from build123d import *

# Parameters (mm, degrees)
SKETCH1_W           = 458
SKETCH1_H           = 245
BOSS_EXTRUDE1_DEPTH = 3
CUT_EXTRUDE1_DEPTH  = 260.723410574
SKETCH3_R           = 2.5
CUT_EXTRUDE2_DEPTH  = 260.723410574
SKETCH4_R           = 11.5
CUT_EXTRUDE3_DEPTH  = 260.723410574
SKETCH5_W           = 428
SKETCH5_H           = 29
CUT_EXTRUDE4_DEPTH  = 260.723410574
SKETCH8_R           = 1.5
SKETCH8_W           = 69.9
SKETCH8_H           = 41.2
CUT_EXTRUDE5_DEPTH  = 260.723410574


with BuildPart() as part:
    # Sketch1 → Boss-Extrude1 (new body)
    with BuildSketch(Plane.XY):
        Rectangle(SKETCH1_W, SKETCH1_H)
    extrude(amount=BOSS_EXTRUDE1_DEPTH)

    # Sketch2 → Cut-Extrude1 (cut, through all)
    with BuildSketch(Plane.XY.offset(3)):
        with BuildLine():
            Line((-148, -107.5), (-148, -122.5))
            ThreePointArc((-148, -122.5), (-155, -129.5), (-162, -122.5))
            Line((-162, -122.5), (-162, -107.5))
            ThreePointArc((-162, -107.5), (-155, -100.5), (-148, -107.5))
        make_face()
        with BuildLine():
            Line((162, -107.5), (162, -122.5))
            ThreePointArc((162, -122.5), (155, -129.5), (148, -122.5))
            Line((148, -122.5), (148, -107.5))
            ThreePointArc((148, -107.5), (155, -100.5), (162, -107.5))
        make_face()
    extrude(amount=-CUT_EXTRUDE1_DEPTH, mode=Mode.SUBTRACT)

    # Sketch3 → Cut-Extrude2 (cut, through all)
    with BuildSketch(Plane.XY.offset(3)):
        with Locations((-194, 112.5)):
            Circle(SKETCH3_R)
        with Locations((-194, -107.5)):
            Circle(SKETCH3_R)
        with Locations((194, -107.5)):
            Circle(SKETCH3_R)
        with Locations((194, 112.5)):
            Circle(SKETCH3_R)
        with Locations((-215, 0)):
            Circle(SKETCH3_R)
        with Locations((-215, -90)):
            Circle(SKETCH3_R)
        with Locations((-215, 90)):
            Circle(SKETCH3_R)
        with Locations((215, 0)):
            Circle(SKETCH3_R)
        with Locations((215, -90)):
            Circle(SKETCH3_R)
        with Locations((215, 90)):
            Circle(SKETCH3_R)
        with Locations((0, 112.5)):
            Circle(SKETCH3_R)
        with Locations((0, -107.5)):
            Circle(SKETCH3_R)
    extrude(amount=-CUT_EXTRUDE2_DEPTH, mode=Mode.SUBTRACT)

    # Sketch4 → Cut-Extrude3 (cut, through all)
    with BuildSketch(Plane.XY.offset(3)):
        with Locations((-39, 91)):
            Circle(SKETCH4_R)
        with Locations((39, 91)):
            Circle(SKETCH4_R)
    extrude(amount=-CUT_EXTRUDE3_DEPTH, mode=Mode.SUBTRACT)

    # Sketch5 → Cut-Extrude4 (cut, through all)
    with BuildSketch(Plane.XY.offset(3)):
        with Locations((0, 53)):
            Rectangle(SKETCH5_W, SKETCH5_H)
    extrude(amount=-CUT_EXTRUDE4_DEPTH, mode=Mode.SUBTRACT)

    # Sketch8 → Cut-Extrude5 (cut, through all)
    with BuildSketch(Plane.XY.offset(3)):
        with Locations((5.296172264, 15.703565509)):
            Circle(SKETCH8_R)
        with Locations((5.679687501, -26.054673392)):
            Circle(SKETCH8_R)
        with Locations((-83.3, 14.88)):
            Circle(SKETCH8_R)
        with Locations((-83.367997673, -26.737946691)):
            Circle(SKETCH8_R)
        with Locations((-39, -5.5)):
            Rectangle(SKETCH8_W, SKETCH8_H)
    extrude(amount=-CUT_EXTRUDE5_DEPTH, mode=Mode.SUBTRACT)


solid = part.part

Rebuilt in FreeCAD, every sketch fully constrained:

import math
import FreeCAD as App
import Part
import Sketcher

V = App.Vector
Q = App.Units.Quantity

doc = App.newDocument("Part")
body = doc.addObject("PartDesign::Body", "Body")

sketch1 = doc.addObject("Sketcher::SketchObject", "Sketch")
body.addObject(sketch1)
sketch1.AttachmentSupport = (doc.XY_Plane, [""])
sketch1.MapMode = "FlatFace"
sketch1.addGeometry(Part.LineSegment(V(-229, 122.5, 0), V(-229, -122.5, 0)), False)
sketch1.addGeometry(Part.LineSegment(V(-229, -122.5, 0), V(229, -122.5, 0)), False)
sketch1.addGeometry(Part.LineSegment(V(229, -122.5, 0), V(229, 122.5, 0)), False)
sketch1.addGeometry(Part.LineSegment(V(229, 122.5, 0), V(-229, 122.5, 0)), False)
sketch1.addConstraint(Sketcher.Constraint("Coincident", 0, 2, 1, 1))
sketch1.addConstraint(Sketcher.Constraint("Coincident", 1, 2, 2, 1))
sketch1.addConstraint(Sketcher.Constraint("Coincident", 2, 2, 3, 1))
sketch1.addConstraint(Sketcher.Constraint("Coincident", 3, 2, 0, 1))
sketch1.addConstraint(Sketcher.Constraint("Vertical", 0))
sketch1.addConstraint(Sketcher.Constraint("Horizontal", 1))
sketch1.addConstraint(Sketcher.Constraint("Vertical", 2))
sketch1.addConstraint(Sketcher.Constraint("Horizontal", 3))
sketch1.addConstraint(Sketcher.Constraint("Symmetric", 0, 2, 2, 2, -1, 1))
sketch1.addConstraint(Sketcher.Constraint("DistanceX", 1, 1, 1, 2, Q("458 mm")))
sketch1.addConstraint(Sketcher.Constraint("DistanceY", 0, 2, 0, 1, Q("245 mm")))
pad1 = doc.addObject("PartDesign::Pad", "Pad")
body.addObject(pad1)
pad1.Profile = sketch1
pad1.Length = 3

sketch2 = doc.addObject("Sketcher::SketchObject", "Sketch001")
body.addObject(sketch2)
sketch2.AttachmentSupport = (doc.XY_Plane, [""])
sketch2.MapMode = "FlatFace"
sketch2.AttachmentOffset = App.Placement(V(0, 0, 3), App.Rotation())
sketch2.addGeometry(Part.LineSegment(V(-148, -122.5, 0), V(-148, -107.5, 0)), False)
sketch2.addGeometry(Part.ArcOfCircle(Part.Circle(V(-155, -107.5, 0), V(0, 0, 1), 7), math.radians(0), math.radians(180)), False)
sketch2.addGeometry(Part.LineSegment(V(-162, -107.5, 0), V(-162, -122.5, 0)), False)
sketch2.addGeometry(Part.ArcOfCircle(Part.Circle(V(-155, -122.5, 0), V(0, 0, 1), 7), math.radians(180), math.radians(360)), False)
sketch2.addGeometry(Part.LineSegment(V(162, -122.5, 0), V(162, -107.5, 0)), False)
sketch2.addGeometry(Part.ArcOfCircle(Part.Circle(V(155, -107.5, 0), V(0, 0, 1), 7), math.radians(0), math.radians(180)), False)
sketch2.addGeometry(Part.LineSegment(V(148, -107.5, 0), V(148, -122.5, 0)), False)
sketch2.addGeometry(Part.ArcOfCircle(Part.Circle(V(155, -122.5, 0), V(0, 0, 1), 7), math.radians(180), math.radians(360)), False)
sketch2.addConstraint(Sketcher.Constraint("Tangent", 0, 2, 1, 1))
sketch2.addConstraint(Sketcher.Constraint("Tangent", 1, 2, 2, 1))
sketch2.addConstraint(Sketcher.Constraint("Tangent", 2, 2, 3, 1))
sketch2.addConstraint(Sketcher.Constraint("Tangent", 3, 2, 0, 1))
sketch2.addConstraint(Sketcher.Constraint("Tangent", 4, 2, 5, 1))
sketch2.addConstraint(Sketcher.Constraint("Tangent", 5, 2, 6, 1))
sketch2.addConstraint(Sketcher.Constraint("Tangent", 6, 2, 7, 1))
sketch2.addConstraint(Sketcher.Constraint("Tangent", 7, 2, 4, 1))
sketch2.addConstraint(Sketcher.Constraint("Vertical", 0))
sketch2.addConstraint(Sketcher.Constraint("Vertical", 2))
sketch2.addConstraint(Sketcher.Constraint("Vertical", 4))
sketch2.addConstraint(Sketcher.Constraint("Vertical", 6))
sketch2.addConstraint(Sketcher.Constraint("Equal", 3, 5))
sketch2.addConstraint(Sketcher.Constraint("Symmetric", 1, 3, 5, 3, -2))
sketch2.addConstraint(Sketcher.Constraint("Horizontal", 3, 3, 7, 3))
sketch2.addConstraint(Sketcher.Constraint("Radius", 1, Q("7 mm")))
sketch2.addConstraint(Sketcher.Constraint("DistanceY", 0, 1, 0, 2, Q("15 mm")))
sketch2.addConstraint(Sketcher.Constraint("DistanceX", 1, 3, -1, 1, Q("155 mm")))
sketch2.addConstraint(Sketcher.Constraint("DistanceY", 1, 3, -1, 1, Q("107.5 mm")))
pocket1 = doc.addObject("PartDesign::Pocket", "Pocket")
body.addObject(pocket1)
pocket1.Profile = sketch2
pocket1.Type = "ThroughAll"

sketch3 = doc.addObject("Sketcher::SketchObject", "Sketch002")
body.addObject(sketch3)
sketch3.AttachmentSupport = (doc.XY_Plane, [""])
sketch3.MapMode = "FlatFace"
sketch3.AttachmentOffset = App.Placement(V(0, 0, 3), App.Rotation())
sketch3.addGeometry(Part.Circle(V(-194, 112.5, 0), V(0, 0, 1), 2.5), False)
sketch3.addGeometry(Part.Circle(V(-194, -107.5, 0), V(0, 0, 1), 2.5), False)
sketch3.addGeometry(Part.Circle(V(194, -107.5, 0), V(0, 0, 1), 2.5), False)
sketch3.addGeometry(Part.Circle(V(194, 112.5, 0), V(0, 0, 1), 2.5), False)
sketch3.addGeometry(Part.Circle(V(-215, 0, 0), V(0, 0, 1), 2.5), False)
sketch3.addGeometry(Part.Circle(V(-215, -90, 0), V(0, 0, 1), 2.5), False)
sketch3.addGeometry(Part.Circle(V(-215, 90, 0), V(0, 0, 1), 2.5), False)
sketch3.addGeometry(Part.Circle(V(215, 0, 0), V(0, 0, 1), 2.5), False)
sketch3.addGeometry(Part.Circle(V(215, -90, 0), V(0, 0, 1), 2.5), False)
sketch3.addGeometry(Part.Circle(V(215, 90, 0), V(0, 0, 1), 2.5), False)
sketch3.addGeometry(Part.Circle(V(0, 112.5, 0), V(0, 0, 1), 2.5), False)
sketch3.addGeometry(Part.Circle(V(0, -107.5, 0), V(0, 0, 1), 2.5), False)
sketch3.addConstraint(Sketcher.Constraint("Equal", 0, 1))
sketch3.addConstraint(Sketcher.Constraint("Equal", 1, 2))
sketch3.addConstraint(Sketcher.Constraint("Equal", 2, 3))
sketch3.addConstraint(Sketcher.Constraint("Equal", 3, 4))
sketch3.addConstraint(Sketcher.Constraint("Equal", 4, 5))
sketch3.addConstraint(Sketcher.Constraint("Equal", 5, 6))
sketch3.addConstraint(Sketcher.Constraint("Equal", 6, 7))
sketch3.addConstraint(Sketcher.Constraint("Equal", 7, 8))
sketch3.addConstraint(Sketcher.Constraint("Equal", 8, 9))
sketch3.addConstraint(Sketcher.Constraint("Equal", 9, 10))
sketch3.addConstraint(Sketcher.Constraint("Equal", 10, 11))
sketch3.addConstraint(Sketcher.Constraint("Symmetric", 4, 3, 7, 3, -1, 1))
sketch3.addConstraint(Sketcher.Constraint("Symmetric", 6, 3, 8, 3, -1, 1))
sketch3.addConstraint(Sketcher.Constraint("Symmetric", 5, 3, 9, 3, -1, 1))
sketch3.addConstraint(Sketcher.Constraint("Symmetric", 1, 3, 2, 3, -2))
sketch3.addConstraint(Sketcher.Constraint("Symmetric", 0, 3, 3, 3, -2))
sketch3.addConstraint(Sketcher.Constraint("Symmetric", 5, 3, 8, 3, -2))
sketch3.addConstraint(Sketcher.Constraint("PointOnObject", 4, 3, -1))
sketch3.addConstraint(Sketcher.Constraint("PointOnObject", 10, 3, -2))
sketch3.addConstraint(Sketcher.Constraint("PointOnObject", 11, 3, -2))
sketch3.addConstraint(Sketcher.Constraint("Horizontal", 3, 3, 10, 3))
sketch3.addConstraint(Sketcher.Constraint("Horizontal", 2, 3, 11, 3))
sketch3.addConstraint(Sketcher.Constraint("Vertical", 0, 3, 1, 3))
sketch3.addConstraint(Sketcher.Constraint("Vertical", 4, 3, 5, 3))
sketch3.addConstraint(Sketcher.Constraint("Diameter", 0, Q("5 mm")))
sketch3.addConstraint(Sketcher.Constraint("DistanceX", 0, 3, -1, 1, Q("194 mm")))
sketch3.addConstraint(Sketcher.Constraint("DistanceX", 4, 3, -1, 1, Q("215 mm")))
sketch3.addConstraint(Sketcher.Constraint("DistanceY", 5, 3, -1, 1, Q("90 mm")))
sketch3.addConstraint(Sketcher.Constraint("DistanceY", 1, 3, 0, 3, Q("220 mm")))
sketch3.addConstraint(Sketcher.Constraint("DistanceY", -1, 1, 0, 3, Q("112.5 mm")))
pocket2 = doc.addObject("PartDesign::Pocket", "Pocket001")
body.addObject(pocket2)
pocket2.Profile = sketch3
pocket2.Type = "ThroughAll"

sketch4 = doc.addObject("Sketcher::SketchObject", "Sketch003")
body.addObject(sketch4)
sketch4.AttachmentSupport = (doc.XY_Plane, [""])
sketch4.MapMode = "FlatFace"
sketch4.AttachmentOffset = App.Placement(V(0, 0, 3), App.Rotation())
sketch4.addGeometry(Part.Circle(V(-39, 91, 0), V(0, 0, 1), 11.5), False)
sketch4.addGeometry(Part.Circle(V(39, 91, 0), V(0, 0, 1), 11.5), False)
sketch4.addConstraint(Sketcher.Constraint("Equal", 0, 1))
sketch4.addConstraint(Sketcher.Constraint("Symmetric", 0, 3, 1, 3, -2))
sketch4.addConstraint(Sketcher.Constraint("Diameter", 0, Q("23 mm")))
sketch4.addConstraint(Sketcher.Constraint("DistanceX", 0, 3, -1, 1, Q("39 mm")))
sketch4.addConstraint(Sketcher.Constraint("DistanceY", -1, 1, 0, 3, Q("91 mm")))
pocket3 = doc.addObject("PartDesign::Pocket", "Pocket002")
body.addObject(pocket3)
pocket3.Profile = sketch4
pocket3.Type = "ThroughAll"

sketch5 = doc.addObject("Sketcher::SketchObject", "Sketch004")
body.addObject(sketch5)
sketch5.AttachmentSupport = (doc.XY_Plane, [""])
sketch5.MapMode = "FlatFace"
sketch5.AttachmentOffset = App.Placement(V(0, 0, 3), App.Rotation())
sketch5.addGeometry(Part.LineSegment(V(-214, 67.5, 0), V(-214, 38.5, 0)), False)
sketch5.addGeometry(Part.LineSegment(V(-214, 38.5, 0), V(214, 38.5, 0)), False)
sketch5.addGeometry(Part.LineSegment(V(214, 38.5, 0), V(214, 67.5, 0)), False)
sketch5.addGeometry(Part.LineSegment(V(214, 67.5, 0), V(-214, 67.5, 0)), False)
sketch5.addConstraint(Sketcher.Constraint("Coincident", 0, 2, 1, 1))
sketch5.addConstraint(Sketcher.Constraint("Coincident", 1, 2, 2, 1))
sketch5.addConstraint(Sketcher.Constraint("Coincident", 2, 2, 3, 1))
sketch5.addConstraint(Sketcher.Constraint("Coincident", 3, 2, 0, 1))
sketch5.addConstraint(Sketcher.Constraint("Vertical", 0))
sketch5.addConstraint(Sketcher.Constraint("Horizontal", 1))
sketch5.addConstraint(Sketcher.Constraint("Vertical", 2))
sketch5.addConstraint(Sketcher.Constraint("Horizontal", 3))
sketch5.addConstraint(Sketcher.Constraint("DistanceX", 1, 1, 1, 2, Q("428 mm")))
sketch5.addConstraint(Sketcher.Constraint("DistanceY", 0, 2, 0, 1, Q("29 mm")))
sketch5.addConstraint(Sketcher.Constraint("DistanceX", 0, 2, -1, 1, Q("214 mm")))
sketch5.addConstraint(Sketcher.Constraint("DistanceY", -1, 1, 0, 2, Q("38.5 mm")))
pocket4 = doc.addObject("PartDesign::Pocket", "Pocket003")
body.addObject(pocket4)
pocket4.Profile = sketch5
pocket4.Type = "ThroughAll"

sketch6 = doc.addObject("Sketcher::SketchObject", "Sketch005")
body.addObject(sketch6)
sketch6.AttachmentSupport = (doc.XY_Plane, [""])
sketch6.MapMode = "FlatFace"
sketch6.AttachmentOffset = App.Placement(V(0, 0, 3), App.Rotation())
sketch6.addGeometry(Part.Circle(V(5.296172, 15.703566, 0), V(0, 0, 1), 1.5), False)
sketch6.addGeometry(Part.Circle(V(5.679688, -26.054673, 0), V(0, 0, 1), 1.5), False)
sketch6.addGeometry(Part.Circle(V(-83.3, 14.88, 0), V(0, 0, 1), 1.5), False)
sketch6.addGeometry(Part.Circle(V(-83.367998, -26.737947, 0), V(0, 0, 1), 1.5), False)
sketch6.addGeometry(Part.LineSegment(V(-73.95, 15.1, 0), V(-73.95, -26.1, 0)), False)
sketch6.addGeometry(Part.LineSegment(V(-73.95, -26.1, 0), V(-4.05, -26.1, 0)), False)
sketch6.addGeometry(Part.LineSegment(V(-4.05, -26.1, 0), V(-4.05, 15.1, 0)), False)
sketch6.addGeometry(Part.LineSegment(V(-4.05, 15.1, 0), V(-73.95, 15.1, 0)), False)
sketch6.addConstraint(Sketcher.Constraint("Coincident", 4, 2, 5, 1))
sketch6.addConstraint(Sketcher.Constraint("Coincident", 5, 2, 6, 1))
sketch6.addConstraint(Sketcher.Constraint("Coincident", 6, 2, 7, 1))
sketch6.addConstraint(Sketcher.Constraint("Coincident", 7, 2, 4, 1))
sketch6.addConstraint(Sketcher.Constraint("Vertical", 4))
sketch6.addConstraint(Sketcher.Constraint("Horizontal", 5))
sketch6.addConstraint(Sketcher.Constraint("Vertical", 6))
sketch6.addConstraint(Sketcher.Constraint("Horizontal", 7))
sketch6.addConstraint(Sketcher.Constraint("Equal", 0, 1))
sketch6.addConstraint(Sketcher.Constraint("Equal", 1, 2))
sketch6.addConstraint(Sketcher.Constraint("Equal", 2, 3))
sketch6.addConstraint(Sketcher.Constraint("Diameter", 0, Q("3 mm")))
sketch6.addConstraint(Sketcher.Constraint("DistanceX", 5, 1, 5, 2, Q("69.9 mm")))
sketch6.addConstraint(Sketcher.Constraint("DistanceY", 4, 2, 4, 1, Q("41.2 mm")))
sketch6.addConstraint(Sketcher.Constraint("DistanceX", 2, 3, -1, 1, Q("83.3 mm")))
sketch6.addConstraint(Sketcher.Constraint("DistanceY", 4, 2, -1, 1, Q("26.1 mm")))
sketch6.addConstraint(Sketcher.Constraint("DistanceY", -1, 1, 2, 3, Q("14.88 mm")))
sketch6.addConstraint(Sketcher.Constraint("DistanceX", 4, 2, -1, 1, Q("73.95 mm")))
sketch6.addConstraint(Sketcher.Constraint("DistanceY", 1, 3, 0, 3, Q("41.758239 mm")))
sketch6.addConstraint(Sketcher.Constraint("DistanceX", 3, 3, 0, 3, Q("88.66417 mm")))
sketch6.addConstraint(Sketcher.Constraint("DistanceX", -1, 1, 0, 3, Q("5.296172 mm")))
sketch6.addConstraint(Sketcher.Constraint("DistanceY", -1, 1, 0, 3, Q("15.703566 mm")))
sketch6.addConstraint(Sketcher.Constraint("DistanceX", -1, 1, 1, 3, Q("5.679688 mm")))
sketch6.addConstraint(Sketcher.Constraint("DistanceY", 3, 3, -1, 1, Q("26.737947 mm")))
pocket5 = doc.addObject("PartDesign::Pocket", "Pocket004")
body.addObject(pocket5)
pocket5.Profile = sketch6
pocket5.Type = "ThroughAll"

doc.recompute()
